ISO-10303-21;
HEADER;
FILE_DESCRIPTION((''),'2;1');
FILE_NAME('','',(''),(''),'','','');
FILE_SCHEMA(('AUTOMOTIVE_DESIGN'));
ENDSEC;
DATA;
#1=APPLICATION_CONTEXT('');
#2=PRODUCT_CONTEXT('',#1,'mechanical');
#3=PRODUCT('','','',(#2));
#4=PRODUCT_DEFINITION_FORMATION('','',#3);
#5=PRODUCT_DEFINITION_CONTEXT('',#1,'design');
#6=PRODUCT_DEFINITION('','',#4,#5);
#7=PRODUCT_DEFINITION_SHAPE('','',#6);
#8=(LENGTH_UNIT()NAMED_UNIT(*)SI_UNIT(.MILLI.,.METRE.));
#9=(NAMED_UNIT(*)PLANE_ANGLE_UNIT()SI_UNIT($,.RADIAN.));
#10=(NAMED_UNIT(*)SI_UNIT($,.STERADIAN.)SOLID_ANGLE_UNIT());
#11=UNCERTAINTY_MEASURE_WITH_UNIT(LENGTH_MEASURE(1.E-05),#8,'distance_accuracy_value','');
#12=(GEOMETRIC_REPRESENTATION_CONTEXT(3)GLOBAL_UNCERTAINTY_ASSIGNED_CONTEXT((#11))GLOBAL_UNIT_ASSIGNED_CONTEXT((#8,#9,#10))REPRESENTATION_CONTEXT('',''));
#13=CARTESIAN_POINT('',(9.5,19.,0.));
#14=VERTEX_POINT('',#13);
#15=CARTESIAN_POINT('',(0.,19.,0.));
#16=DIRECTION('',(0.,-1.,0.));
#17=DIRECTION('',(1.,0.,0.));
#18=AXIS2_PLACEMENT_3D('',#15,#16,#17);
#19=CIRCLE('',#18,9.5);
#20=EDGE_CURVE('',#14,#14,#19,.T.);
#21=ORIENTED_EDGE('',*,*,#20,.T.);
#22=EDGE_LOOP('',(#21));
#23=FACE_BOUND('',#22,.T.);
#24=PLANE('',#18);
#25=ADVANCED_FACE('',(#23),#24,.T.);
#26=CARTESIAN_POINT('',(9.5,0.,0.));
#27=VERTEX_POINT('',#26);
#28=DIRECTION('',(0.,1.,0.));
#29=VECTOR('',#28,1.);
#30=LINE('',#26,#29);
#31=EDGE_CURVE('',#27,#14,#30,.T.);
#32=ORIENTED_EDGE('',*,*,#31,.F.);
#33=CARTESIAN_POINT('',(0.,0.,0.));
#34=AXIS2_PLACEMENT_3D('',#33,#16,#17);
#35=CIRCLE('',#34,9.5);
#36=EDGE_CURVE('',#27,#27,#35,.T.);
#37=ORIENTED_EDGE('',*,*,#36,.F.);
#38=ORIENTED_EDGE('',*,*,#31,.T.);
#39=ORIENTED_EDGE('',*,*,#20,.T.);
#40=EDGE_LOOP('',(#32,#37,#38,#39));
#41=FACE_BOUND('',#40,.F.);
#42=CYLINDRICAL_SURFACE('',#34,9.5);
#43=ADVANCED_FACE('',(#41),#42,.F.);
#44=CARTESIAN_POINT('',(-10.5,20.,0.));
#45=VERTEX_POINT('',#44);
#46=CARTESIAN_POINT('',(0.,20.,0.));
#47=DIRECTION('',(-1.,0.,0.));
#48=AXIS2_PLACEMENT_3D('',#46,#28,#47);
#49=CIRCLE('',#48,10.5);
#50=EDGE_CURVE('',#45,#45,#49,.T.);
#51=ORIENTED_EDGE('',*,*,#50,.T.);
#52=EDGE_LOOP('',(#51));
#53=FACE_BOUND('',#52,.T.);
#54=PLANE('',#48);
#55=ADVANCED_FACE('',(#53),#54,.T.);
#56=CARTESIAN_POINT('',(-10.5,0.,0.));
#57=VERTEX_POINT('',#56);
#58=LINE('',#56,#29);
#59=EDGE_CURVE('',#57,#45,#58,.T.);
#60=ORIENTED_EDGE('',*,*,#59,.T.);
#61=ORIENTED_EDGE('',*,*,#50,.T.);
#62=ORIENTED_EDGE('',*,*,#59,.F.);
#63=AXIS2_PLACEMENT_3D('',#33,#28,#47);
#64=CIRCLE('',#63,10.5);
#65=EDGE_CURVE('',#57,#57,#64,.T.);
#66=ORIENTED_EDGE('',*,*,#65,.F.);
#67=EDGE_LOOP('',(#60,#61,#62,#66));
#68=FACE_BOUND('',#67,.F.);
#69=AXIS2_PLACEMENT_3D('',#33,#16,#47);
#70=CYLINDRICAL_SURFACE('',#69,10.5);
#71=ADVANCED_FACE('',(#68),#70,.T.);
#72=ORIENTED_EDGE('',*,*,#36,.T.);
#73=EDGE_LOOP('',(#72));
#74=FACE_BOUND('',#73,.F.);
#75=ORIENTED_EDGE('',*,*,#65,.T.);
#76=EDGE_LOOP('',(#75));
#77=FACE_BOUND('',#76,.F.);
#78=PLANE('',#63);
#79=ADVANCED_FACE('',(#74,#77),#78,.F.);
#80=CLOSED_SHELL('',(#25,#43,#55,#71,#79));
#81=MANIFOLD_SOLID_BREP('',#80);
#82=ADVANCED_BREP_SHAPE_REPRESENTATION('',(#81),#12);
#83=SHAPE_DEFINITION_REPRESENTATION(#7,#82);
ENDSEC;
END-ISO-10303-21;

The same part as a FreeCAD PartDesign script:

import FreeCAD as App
import Part
import Sketcher

V = App.Vector
Q = App.Units.Quantity

doc = App.newDocument("Part")
body = doc.addObject("PartDesign::Body", "Body")

# Sketch on XZ plane
sketch1 = body.newObject("Sketcher::SketchObject", "Sketch")
sketch1.AttachmentSupport = (doc.getObject("XZ_Plane"), [""])
sketch1.MapMode = "FlatFace"
sketch1.addGeometry(Part.Circle(V(0, 0, 0), V(0, 0, 1), 10), False)
sketch1.addConstraint(Sketcher.Constraint("Coincident", 0, 3, -1, 1))
sketch1.addConstraint(Sketcher.Constraint("Diameter", 0, Q("21 mm")))
pad1 = body.newObject("PartDesign::Pad", "Pad")
pad1.Profile = sketch1
pad1.Length = 20
pad1.Reversed = True

# Sketch on XZ plane
sketch2 = body.newObject("Sketcher::SketchObject", "Sketch001")
sketch2.AttachmentSupport = (doc.getObject("XZ_Plane"), [""])
sketch2.MapMode = "FlatFace"
sketch2.addGeometry(Part.Circle(V(0, 0, 0), V(0, 0, 1), 10), False)
sketch2.addConstraint(Sketcher.Constraint("Coincident", 0, 3, -1, 1))
sketch2.addConstraint(Sketcher.Constraint("Diameter", 0, Q("19 mm")))
pocket1 = body.newObject("PartDesign::Pocket", "Pocket")
pocket1.Profile = sketch2
pocket1.Length = 19

doc.recompute()
